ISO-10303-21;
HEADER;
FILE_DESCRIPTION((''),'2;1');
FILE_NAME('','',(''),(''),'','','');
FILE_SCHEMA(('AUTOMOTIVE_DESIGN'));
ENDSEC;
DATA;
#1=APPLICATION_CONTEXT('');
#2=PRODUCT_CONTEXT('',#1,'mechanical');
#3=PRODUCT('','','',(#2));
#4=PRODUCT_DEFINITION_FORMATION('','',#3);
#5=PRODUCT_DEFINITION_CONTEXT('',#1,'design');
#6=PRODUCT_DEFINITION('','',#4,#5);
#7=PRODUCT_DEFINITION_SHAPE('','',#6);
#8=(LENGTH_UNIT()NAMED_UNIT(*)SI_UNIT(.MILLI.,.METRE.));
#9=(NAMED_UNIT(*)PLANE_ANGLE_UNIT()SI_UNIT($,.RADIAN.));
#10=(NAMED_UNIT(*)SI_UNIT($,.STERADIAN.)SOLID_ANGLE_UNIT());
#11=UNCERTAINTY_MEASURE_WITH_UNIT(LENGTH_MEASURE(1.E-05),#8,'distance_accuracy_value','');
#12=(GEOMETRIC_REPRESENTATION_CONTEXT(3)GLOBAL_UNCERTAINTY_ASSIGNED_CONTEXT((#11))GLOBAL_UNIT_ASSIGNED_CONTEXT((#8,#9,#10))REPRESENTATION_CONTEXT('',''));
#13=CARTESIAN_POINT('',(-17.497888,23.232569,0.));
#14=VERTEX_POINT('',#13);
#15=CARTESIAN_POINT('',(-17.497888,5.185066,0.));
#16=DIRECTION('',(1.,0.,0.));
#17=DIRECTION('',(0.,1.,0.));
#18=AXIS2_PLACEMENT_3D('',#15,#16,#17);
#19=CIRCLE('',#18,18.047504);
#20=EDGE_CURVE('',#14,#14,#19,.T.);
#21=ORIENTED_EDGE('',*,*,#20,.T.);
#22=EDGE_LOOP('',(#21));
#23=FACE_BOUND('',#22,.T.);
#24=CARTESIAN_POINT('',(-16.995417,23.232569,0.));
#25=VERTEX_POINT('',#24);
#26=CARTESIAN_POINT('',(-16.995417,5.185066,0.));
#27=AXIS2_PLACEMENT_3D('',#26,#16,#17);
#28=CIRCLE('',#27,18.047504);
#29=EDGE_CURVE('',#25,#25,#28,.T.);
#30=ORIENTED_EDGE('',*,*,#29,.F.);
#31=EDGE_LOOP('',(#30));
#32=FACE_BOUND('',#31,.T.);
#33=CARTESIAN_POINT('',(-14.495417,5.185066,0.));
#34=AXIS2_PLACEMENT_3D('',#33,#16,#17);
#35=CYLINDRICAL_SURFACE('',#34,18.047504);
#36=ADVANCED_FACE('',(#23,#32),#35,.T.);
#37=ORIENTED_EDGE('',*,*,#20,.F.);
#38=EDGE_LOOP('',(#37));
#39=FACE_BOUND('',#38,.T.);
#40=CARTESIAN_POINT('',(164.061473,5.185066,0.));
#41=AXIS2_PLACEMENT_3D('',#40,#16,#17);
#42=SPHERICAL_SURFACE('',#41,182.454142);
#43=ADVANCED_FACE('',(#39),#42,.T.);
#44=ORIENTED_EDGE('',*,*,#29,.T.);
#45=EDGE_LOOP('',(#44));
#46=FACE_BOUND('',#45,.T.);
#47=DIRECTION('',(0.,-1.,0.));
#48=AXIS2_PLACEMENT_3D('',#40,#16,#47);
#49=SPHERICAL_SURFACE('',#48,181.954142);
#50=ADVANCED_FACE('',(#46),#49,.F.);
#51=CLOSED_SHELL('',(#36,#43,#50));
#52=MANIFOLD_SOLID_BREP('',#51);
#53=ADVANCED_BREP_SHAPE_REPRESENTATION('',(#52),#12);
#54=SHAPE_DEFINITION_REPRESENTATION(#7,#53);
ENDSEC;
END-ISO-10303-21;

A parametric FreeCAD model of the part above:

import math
import FreeCAD as App
import Part
import Sketcher
from FreeCAD import Vector
Q = App.Units.Quantity

doc = App.newDocument("Part")
body = doc.addObject("PartDesign::Body", "Body")

# Sketch on XY plane
sketch1 = doc.addObject("Sketcher::SketchObject", "Sketch")
body.addObject(sketch1)
sketch1.AttachmentSupport = (doc.XY_Plane, [""])
sketch1.MapMode = "FlatFace"
sketch1.addGeometry([
    Part.LineSegment(Vector(-16.995417, 23.232569, 0), Vector(-17.497888, 23.232569, 0)),
    Part.ArcOfCircle(Part.Circle(Vector(164.061473, 5.185066, 0), Vector(0, 0, 1), 182.454142), math.radians(174.323289), math.radians(180)),
    Part.LineSegment(Vector(-18.392669, 5.185066, 0), Vector(-17.892669, 5.185066, 0)),
    Part.ArcOfCircle(Part.Circle(Vector(164.061473, 5.185066, 0), Vector(0, 0, 1), 181.954142), math.radians(174.307638), math.radians(180)),
], False)
sketch1.addGeometry(Part.LineSegment(Vector(164.061473, 5.185066, 0), Vector(-18.392669, 5.185066, 0)), True)  # axis
sketch1.addConstraint([
    Sketcher.Constraint("Coincident", 0, 2, 1, 1),
    Sketcher.Constraint("Coincident", 1, 2, 2, 1),
    Sketcher.Constraint("Coincident", 2, 2, 3, 2),
    Sketcher.Constraint("Coincident", 3, 1, 0, 1),
    Sketcher.Constraint("Horizontal", 0),
    Sketcher.Constraint("Horizontal", 2),
    Sketcher.Constraint("Horizontal", 4),
    Sketcher.Constraint("Coincident", 3, 3, 1, 3),
    Sketcher.Constraint("Coincident", 4, 1, 1, 3),
    Sketcher.Constraint("Coincident", 4, 2, 1, 2),
    Sketcher.Constraint("DistanceX", 2, 1, 2, 2, Q("0.5 mm")),
    Sketcher.Constraint("Radius", 1, Q("182.454142 mm")),
    Sketcher.Constraint("DistanceX", 0, 2, -1, 1, Q("17.497888 mm")),
    Sketcher.Constraint("DistanceY", -1, 1, 0, 2, Q("23.232569 mm")),
    Sketcher.Constraint("DistanceX", 1, 2, -1, 1, Q("18.392669 mm")),
])
revolution = doc.addObject("PartDesign::Revolution", "Revolution")
body.addObject(revolution)
revolution.Profile = sketch1
revolution.ReferenceAxis = (sketch1, ["Axis0"])
revolution.Angle = 360

doc.recompute()
